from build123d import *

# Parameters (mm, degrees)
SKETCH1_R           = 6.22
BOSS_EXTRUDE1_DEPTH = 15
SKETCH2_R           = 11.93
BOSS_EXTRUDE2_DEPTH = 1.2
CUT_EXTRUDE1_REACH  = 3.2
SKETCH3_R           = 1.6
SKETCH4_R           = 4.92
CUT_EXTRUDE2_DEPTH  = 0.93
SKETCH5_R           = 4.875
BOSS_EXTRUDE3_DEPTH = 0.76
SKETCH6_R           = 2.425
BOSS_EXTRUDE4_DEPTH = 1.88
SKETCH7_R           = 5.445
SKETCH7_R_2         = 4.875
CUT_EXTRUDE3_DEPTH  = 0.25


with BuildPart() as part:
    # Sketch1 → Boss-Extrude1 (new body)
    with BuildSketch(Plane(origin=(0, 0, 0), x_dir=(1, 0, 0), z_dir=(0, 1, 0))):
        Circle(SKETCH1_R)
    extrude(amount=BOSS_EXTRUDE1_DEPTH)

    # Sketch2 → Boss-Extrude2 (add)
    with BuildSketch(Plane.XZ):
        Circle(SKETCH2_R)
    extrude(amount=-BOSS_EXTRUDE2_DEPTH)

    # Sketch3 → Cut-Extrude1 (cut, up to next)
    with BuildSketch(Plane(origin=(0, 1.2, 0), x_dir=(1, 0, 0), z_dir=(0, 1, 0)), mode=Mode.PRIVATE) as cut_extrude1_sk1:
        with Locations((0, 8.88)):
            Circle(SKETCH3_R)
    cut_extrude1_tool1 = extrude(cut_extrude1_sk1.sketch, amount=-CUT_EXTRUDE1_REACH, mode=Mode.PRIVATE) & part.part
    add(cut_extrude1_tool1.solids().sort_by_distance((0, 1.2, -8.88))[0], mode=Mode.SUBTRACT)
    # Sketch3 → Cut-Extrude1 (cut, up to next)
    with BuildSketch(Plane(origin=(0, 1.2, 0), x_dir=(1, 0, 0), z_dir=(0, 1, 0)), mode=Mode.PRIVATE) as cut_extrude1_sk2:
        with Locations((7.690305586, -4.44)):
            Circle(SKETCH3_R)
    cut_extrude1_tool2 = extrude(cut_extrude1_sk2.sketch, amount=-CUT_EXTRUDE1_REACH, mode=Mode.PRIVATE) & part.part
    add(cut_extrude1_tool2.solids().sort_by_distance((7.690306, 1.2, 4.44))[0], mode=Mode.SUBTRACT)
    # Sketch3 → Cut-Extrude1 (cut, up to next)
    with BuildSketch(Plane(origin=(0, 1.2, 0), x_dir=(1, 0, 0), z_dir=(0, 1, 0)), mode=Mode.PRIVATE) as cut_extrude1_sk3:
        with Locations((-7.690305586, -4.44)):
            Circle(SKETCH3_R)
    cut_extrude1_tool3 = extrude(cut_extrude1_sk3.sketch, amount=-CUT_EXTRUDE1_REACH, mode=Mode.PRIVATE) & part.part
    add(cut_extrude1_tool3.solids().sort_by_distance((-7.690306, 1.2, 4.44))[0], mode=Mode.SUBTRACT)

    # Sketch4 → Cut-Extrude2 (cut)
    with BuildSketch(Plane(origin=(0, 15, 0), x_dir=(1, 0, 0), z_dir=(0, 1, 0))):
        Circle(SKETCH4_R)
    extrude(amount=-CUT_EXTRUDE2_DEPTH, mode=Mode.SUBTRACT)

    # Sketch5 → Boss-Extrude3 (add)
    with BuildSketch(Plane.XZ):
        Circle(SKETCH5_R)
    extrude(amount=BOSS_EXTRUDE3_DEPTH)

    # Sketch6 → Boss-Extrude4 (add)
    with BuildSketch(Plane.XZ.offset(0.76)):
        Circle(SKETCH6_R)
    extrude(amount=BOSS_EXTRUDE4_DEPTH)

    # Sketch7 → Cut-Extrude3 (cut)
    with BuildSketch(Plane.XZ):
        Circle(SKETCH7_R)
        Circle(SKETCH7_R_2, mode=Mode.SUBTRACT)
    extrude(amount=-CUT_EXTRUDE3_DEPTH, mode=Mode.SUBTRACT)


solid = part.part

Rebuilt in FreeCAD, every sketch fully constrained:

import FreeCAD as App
import Part
import Sketcher

doc = App.newDocument("Part")
body = doc.addObject("PartDesign::Body", "Body")

sketch1 = doc.addObject("Sketcher::SketchObject", "Sketch")
body.addObject(sketch1)
sketch1.AttachmentSupport = (doc.XZ_Plane, [""])
sketch1.MapMode = "FlatFace"
sketch1.addGeometry(Part.Circle(App.Vector(0, 0, 0), App.Vector(0, 0, 1), 6), False)
sketch1.addConstraint(Sketcher.Constraint("Coincident", 0, 3, -1, 1))
sketch1.addConstraint(Sketcher.Constraint("Diameter", 0, 12.44))
pad1 = doc.addObject("PartDesign::Pad", "Pad")
body.addObject(pad1)
pad1.Profile = sketch1
pad1.Length = 15
pad1.Reversed = True

sketch2 = doc.addObject("Sketcher::SketchObject", "Sketch001")
body.addObject(sketch2)
sketch2.AttachmentSupport = (doc.XZ_Plane, [""])
sketch2.MapMode = "FlatFace"
sketch2.addGeometry(Part.Circle(App.Vector(0, 0, 0), App.Vector(0, 0, 1), 12), False)
sketch2.addConstraint(Sketcher.Constraint("Coincident", 0, 3, -1, 1))
sketch2.addConstraint(Sketcher.Constraint("Diameter", 0, 23.86))
pad2 = doc.addObject("PartDesign::Pad", "Pad001")
body.addObject(pad2)
pad2.Profile = sketch2
pad2.Length = 1.2
pad2.Reversed = True

sketch3 = doc.addObject("Sketcher::SketchObject", "Sketch002")
body.addObject(sketch3)
sketch3.AttachmentSupport = (doc.XZ_Plane, [""])
sketch3.MapMode = "FlatFace"
sketch3.AttachmentOffset = App.Placement(App.Vector(0, 0, -1.2), App.Rotation())
sketch3.addGeometry(Part.Circle(App.Vector(0, -8.9, 0), App.Vector(0, 0, 1), 1.6), False)
sketch3.addConstraint(Sketcher.Constraint("PointOnObject", 0, 3, -2))
sketch3.addConstraint(Sketcher.Constraint("Diameter", 0, 3.2))
sketch3.addConstraint(Sketcher.Constraint("DistanceY", 0, 3, -1, 1, 8.88))
pocket1 = doc.addObject("PartDesign::Pocket", "Pocket")
body.addObject(pocket1)
pocket1.Profile = sketch3
pocket1.Type = "UpToFirst"
pocket1.Reversed = True

sketch4 = doc.addObject("Sketcher::SketchObject", "Sketch003")
body.addObject(sketch4)
sketch4.AttachmentSupport = (doc.XZ_Plane, [""])
sketch4.MapMode = "FlatFace"
sketch4.AttachmentOffset = App.Placement(App.Vector(0, 0, -1.2), App.Rotation())
sketch4.addGeometry(Part.Circle(App.Vector(7.7, 4.4, 0), App.Vector(0, 0, 1), 1.6), False)
sketch4.addConstraint(Sketcher.Constraint("Diameter", 0, 3.2))
sketch4.addConstraint(Sketcher.Constraint("DistanceY", -1, 1, 0, 3, 4.44))
sketch4.addConstraint(Sketcher.Constraint("DistanceX", -1, 1, 0, 3, 7.690306))
pocket2 = doc.addObject("PartDesign::Pocket", "Pocket001")
body.addObject(pocket2)
pocket2.Profile = sketch4
pocket2.Type = "UpToFirst"
pocket2.Reversed = True

sketch5 = doc.addObject("Sketcher::SketchObject", "Sketch004")
body.addObject(sketch5)
sketch5.AttachmentSupport = (doc.XZ_Plane, [""])
sketch5.MapMode = "FlatFace"
sketch5.AttachmentOffset = App.Placement(App.Vector(0, 0, -1.2), App.Rotation())
sketch5.addGeometry(Part.Circle(App.Vector(-7.7, 4.4, 0), App.Vector(0, 0, 1), 1.6), False)
sketch5.addConstraint(Sketcher.Constraint("Diameter", 0, 3.2))
sketch5.addConstraint(Sketcher.Constraint("DistanceY", -1, 1, 0, 3, 4.44))
sketch5.addConstraint(Sketcher.Constraint("DistanceX", 0, 3, -1, 1, 7.690306))
pocket3 = doc.addObject("PartDesign::Pocket", "Pocket002")
body.addObject(pocket3)
pocket3.Profile = sketch5
pocket3.Type = "UpToFirst"
pocket3.Reversed = True

sketch6 = doc.addObject("Sketcher::SketchObject", "Sketch005")
body.addObject(sketch6)
sketch6.AttachmentSupport = (doc.XZ_Plane, [""])
sketch6.MapMode = "FlatFace"
sketch6.AttachmentOffset = App.Placement(App.Vector(0, 0, -15), App.Rotation())
sketch6.addGeometry(Part.Circle(App.Vector(0, 0, 0), App.Vector(0, 0, 1), 4.9), False)
sketch6.addConstraint(Sketcher.Constraint("Coincident", 0, 3, -1, 1))
sketch6.addConstraint(Sketcher.Constraint("Diameter", 0, 9.84))
pocket4 = doc.addObject("PartDesign::Pocket", "Pocket003")
body.addObject(pocket4)
pocket4.Profile = sketch6
pocket4.Length = 0.93
pocket4.Reversed = True

sketch7 = doc.addObject("Sketcher::SketchObject", "Sketch006")
body.addObject(sketch7)
sketch7.AttachmentSupport = (doc.XZ_Plane, [""])
sketch7.MapMode = "FlatFace"
sketch7.addGeometry(Part.Circle(App.Vector(0, 0, 0), App.Vector(0, 0, 1), 4.9), False)
sketch7.addConstraint(Sketcher.Constraint("Coincident", 0, 3, -1, 1))
sketch7.addConstraint(Sketcher.Constraint("Diameter", 0, 9.75))
pad3 = doc.addObject("PartDesign::Pad", "Pad002")
body.addObject(pad3)
pad3.Profile = sketch7
pad3.Length = 0.76

sketch8 = doc.addObject("Sketcher::SketchObject", "Sketch007")
body.addObject(sketch8)
sketch8.AttachmentSupport = (doc.XZ_Plane, [""])
sketch8.MapMode = "FlatFace"
sketch8.AttachmentOffset = App.Placement(App.Vector(0, 0, 0.76), App.Rotation())
sketch8.addGeometry(Part.Circle(App.Vector(0, 0, 0), App.Vector(0, 0, 1), 2.4), False)
sketch8.addConstraint(Sketcher.Constraint("Coincident", 0, 3, -1, 1))
sketch8.addConstraint(Sketcher.Constraint("Diameter", 0, 4.85))
pad4 = doc.addObject("PartDesign::Pad", "Pad003")
body.addObject(pad4)
pad4.Profile = sketch8
pad4.Length = 1.88

sketch9 = doc.addObject("Sketcher::SketchObject", "Sketch008")
body.addObject(sketch9)
sketch9.AttachmentSupport = (doc.XZ_Plane, [""])
sketch9.MapMode = "FlatFace"
sketch9.addGeometry(Part.Circle(App.Vector(0, 0, 0), App.Vector(0, 0, 1), 5.4), False)
sketch9.addGeometry(Part.Circle(App.Vector(0, 0, 0), App.Vector(0, 0, 1), 4.9), False)
sketch9.addConstraint(Sketcher.Constraint("Coincident", 0, 3, -1, 1))
sketch9.addConstraint(Sketcher.Constraint("Coincident", 1, 3, -1, 1))
sketch9.addConstraint(Sketcher.Constraint("Diameter", 0, 10.89))
sketch9.addConstraint(Sketcher.Constraint("Diameter", 1, 9.75))
pocket5 = doc.addObject("PartDesign::Pocket", "Pocket004")
body.addObject(pocket5)
pocket5.Profile = sketch9
pocket5.Length = 0.25

doc.recompute()
